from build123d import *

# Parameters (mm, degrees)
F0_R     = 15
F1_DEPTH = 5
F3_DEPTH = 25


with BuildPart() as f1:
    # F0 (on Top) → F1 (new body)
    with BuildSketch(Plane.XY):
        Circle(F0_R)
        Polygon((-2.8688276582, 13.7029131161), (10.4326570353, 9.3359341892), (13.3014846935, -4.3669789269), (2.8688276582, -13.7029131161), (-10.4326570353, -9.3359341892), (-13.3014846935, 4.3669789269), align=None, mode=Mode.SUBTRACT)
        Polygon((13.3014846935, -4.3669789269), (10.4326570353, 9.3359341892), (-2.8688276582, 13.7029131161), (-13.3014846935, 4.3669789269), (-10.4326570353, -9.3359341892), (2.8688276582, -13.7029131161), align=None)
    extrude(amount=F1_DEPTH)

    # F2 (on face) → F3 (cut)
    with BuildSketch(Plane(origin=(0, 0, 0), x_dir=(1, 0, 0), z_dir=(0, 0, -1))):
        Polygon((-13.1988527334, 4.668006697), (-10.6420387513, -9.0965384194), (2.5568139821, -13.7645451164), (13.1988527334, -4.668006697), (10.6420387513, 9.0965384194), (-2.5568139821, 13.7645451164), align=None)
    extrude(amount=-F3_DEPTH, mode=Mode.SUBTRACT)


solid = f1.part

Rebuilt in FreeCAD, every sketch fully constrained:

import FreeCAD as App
import Part
import Sketcher

V = App.Vector
Q = App.Units.Quantity


def add_polygon(sketch, points):
    """Adds a closed chain of lines whose ends are joined by coincident constraints."""
    first, n = sketch.GeometryCount, len(points)
    for a, b in zip(points, points[1:] + points[:1]):
        sketch.addGeometry(Part.LineSegment(App.Vector(*a, 0), App.Vector(*b, 0)), False)
    for i in range(n):
        sketch.addConstraint(Sketcher.Constraint("Coincident", first + i, 2, first + (i + 1) % n, 1))

doc = App.newDocument("Part")
body = doc.addObject("PartDesign::Body", "Body")

# Sketch on XY plane
sketch1 = body.newObject("Sketcher::SketchObject", "Sketch")
sketch1.AttachmentSupport = (doc.getObject("XY_Plane"), [""])
sketch1.MapMode = "FlatFace"
sketch1.addGeometry(Part.Circle(V(0, 0, 0), V(0, 0, 1), 15), False)
sketch1.addConstraint([
    Sketcher.Constraint("Coincident", 0, 3, -1, 1),
    Sketcher.Constraint("Diameter", 0, Q("30 mm")),
])
pad1 = body.newObject("PartDesign::Pad", "Pad")
pad1.Profile = sketch1
pad1.Length = 5

# Sketch on XY plane
sketch2 = body.newObject("Sketcher::SketchObject", "Sketch001")
sketch2.AttachmentSupport = (doc.getObject("XY_Plane"), [""])
sketch2.MapMode = "FlatFace"
add_polygon(sketch2, [(-13.198853, -4.668007), (-10.642039, 9.096538), (2.556814, 13.764545), (13.198853, 4.668007), (10.642039, -9.096538), (-2.556814, -13.764545)])  # lines 0-5
sketch2.addConstraint([
    Sketcher.Constraint("Symmetric", 0, 2, 3, 2, -1, 1),
    Sketcher.Constraint("Symmetric", 1, 2, 4, 2, -1, 1),
    Sketcher.Constraint("Symmetric", 2, 2, 5, 2, -1, 1),
    Sketcher.Constraint("Equal", 0, 1),
    Sketcher.Constraint("Equal", 1, 2),
    Sketcher.Constraint("Distance", 0, Q("14 mm")),
    Sketcher.Constraint("DistanceX", 0, 2, -1, 1, Q("10.642039 mm")),
    Sketcher.Constraint("DistanceY", -1, 1, 0, 2, Q("9.096538 mm")),
    Sketcher.Constraint("DistanceX", 1, 2, 2, 2, Q("10.642039 mm")),
])
pocket1 = body.newObject("PartDesign::Pocket", "Pocket")
pocket1.Profile = sketch2
pocket1.Length = 25
pocket1.Reversed = True

doc.recompute()
